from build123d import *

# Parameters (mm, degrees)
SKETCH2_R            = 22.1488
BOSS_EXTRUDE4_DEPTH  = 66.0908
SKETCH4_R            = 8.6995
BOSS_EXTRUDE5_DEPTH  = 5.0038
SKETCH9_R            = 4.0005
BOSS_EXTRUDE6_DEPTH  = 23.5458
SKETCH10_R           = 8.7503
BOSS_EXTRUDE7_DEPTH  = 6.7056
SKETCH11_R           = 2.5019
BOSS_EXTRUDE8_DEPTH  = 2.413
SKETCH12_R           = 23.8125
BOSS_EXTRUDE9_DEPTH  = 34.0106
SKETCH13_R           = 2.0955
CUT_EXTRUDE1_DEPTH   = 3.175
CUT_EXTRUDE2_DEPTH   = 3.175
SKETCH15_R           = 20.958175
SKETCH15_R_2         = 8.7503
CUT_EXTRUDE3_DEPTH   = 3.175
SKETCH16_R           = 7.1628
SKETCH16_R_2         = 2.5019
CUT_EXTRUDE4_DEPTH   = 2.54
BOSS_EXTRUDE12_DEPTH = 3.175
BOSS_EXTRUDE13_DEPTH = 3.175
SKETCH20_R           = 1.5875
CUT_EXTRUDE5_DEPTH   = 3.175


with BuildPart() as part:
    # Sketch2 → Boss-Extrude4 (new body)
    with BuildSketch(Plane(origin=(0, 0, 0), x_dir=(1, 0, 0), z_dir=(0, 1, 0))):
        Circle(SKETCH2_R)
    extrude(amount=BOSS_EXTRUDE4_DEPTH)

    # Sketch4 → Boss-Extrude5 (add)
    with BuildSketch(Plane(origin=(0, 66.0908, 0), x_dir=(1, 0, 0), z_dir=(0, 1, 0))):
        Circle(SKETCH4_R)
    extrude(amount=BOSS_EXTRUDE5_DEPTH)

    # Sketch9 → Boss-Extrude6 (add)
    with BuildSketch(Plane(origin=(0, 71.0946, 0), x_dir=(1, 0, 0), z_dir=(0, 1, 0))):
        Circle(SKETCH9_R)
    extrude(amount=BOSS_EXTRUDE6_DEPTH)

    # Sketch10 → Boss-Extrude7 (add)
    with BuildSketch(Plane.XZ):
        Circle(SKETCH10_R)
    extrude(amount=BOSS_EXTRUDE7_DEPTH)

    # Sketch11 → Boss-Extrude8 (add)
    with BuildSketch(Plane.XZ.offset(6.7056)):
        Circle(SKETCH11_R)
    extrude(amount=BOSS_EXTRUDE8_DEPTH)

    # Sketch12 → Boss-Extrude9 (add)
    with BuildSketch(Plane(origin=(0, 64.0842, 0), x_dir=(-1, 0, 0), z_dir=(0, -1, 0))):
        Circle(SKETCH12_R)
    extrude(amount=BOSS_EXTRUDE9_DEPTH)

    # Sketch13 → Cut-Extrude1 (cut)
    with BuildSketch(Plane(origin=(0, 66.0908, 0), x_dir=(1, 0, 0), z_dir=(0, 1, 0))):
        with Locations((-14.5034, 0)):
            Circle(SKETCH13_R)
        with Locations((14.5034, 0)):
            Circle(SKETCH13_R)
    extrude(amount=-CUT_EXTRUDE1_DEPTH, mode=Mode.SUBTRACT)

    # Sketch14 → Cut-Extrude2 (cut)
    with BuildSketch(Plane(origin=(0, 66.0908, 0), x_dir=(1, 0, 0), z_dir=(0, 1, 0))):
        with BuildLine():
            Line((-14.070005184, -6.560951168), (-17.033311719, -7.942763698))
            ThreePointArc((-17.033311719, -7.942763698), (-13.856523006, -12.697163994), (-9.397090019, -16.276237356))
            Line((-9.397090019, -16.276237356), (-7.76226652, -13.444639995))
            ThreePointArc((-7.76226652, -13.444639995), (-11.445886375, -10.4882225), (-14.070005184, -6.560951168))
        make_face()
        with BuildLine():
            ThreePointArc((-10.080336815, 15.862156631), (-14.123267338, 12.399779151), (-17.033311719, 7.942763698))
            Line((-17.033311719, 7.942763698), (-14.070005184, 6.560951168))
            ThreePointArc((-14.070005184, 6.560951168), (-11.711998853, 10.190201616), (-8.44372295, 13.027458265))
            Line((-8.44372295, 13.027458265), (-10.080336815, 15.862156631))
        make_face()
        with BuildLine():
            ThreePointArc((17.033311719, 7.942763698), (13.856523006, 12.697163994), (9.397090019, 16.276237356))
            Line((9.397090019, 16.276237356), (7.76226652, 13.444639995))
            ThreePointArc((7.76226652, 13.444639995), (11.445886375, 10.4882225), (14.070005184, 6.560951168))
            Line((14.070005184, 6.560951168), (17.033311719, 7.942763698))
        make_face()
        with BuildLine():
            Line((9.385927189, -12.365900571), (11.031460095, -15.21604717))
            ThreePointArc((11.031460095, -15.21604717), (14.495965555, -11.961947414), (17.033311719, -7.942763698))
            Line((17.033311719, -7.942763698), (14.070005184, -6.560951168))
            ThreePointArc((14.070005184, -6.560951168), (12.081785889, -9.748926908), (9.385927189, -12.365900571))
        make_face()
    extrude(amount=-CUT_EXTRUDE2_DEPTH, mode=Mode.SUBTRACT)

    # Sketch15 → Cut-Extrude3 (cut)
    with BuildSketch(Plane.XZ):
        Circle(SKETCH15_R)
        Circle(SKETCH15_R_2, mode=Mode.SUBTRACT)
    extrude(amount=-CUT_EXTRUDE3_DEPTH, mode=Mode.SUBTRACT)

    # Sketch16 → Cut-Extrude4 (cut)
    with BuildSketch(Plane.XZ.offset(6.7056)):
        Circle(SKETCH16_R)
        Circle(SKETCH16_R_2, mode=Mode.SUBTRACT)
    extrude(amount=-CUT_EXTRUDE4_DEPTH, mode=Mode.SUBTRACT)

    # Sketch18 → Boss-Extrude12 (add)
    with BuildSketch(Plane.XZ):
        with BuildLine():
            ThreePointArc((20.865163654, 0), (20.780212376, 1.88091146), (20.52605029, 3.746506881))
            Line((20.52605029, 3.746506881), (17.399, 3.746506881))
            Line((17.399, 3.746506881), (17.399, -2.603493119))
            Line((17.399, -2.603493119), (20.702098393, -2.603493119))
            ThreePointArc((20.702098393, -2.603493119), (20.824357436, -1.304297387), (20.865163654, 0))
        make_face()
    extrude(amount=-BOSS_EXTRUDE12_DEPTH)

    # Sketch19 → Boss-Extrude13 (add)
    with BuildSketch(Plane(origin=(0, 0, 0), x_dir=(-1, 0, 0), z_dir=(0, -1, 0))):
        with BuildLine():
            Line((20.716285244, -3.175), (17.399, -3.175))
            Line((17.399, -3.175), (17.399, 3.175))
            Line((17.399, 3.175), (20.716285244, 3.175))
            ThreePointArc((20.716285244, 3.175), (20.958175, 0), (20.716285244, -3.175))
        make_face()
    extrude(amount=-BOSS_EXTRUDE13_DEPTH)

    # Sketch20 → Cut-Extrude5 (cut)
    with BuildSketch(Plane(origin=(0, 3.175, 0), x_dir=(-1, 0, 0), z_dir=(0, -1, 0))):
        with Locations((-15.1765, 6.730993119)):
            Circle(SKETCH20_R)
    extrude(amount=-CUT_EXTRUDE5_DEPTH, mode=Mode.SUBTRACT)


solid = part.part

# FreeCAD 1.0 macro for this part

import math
import FreeCAD as App
import Part
import Sketcher
Q = App.Units.Quantity

doc = App.newDocument("Part")
body = doc.addObject("PartDesign::Body", "Body")

sketch1 = body.newObject("Sketcher::SketchObject", "Sketch")
sketch1.AttachmentSupport = (doc.getObject("XZ_Plane"), [""])
sketch1.MapMode = "FlatFace"
sketch1.addGeometry(Part.Circle(App.Vector(0, 0, 0), App.Vector(0, 0, 1), 22), False)
sketch1.addConstraint([
    Sketcher.Constraint("Coincident", 0, 3, -1, 1),
    Sketcher.Constraint("Diameter", 0, Q("1.744 in")),
])
pad1 = body.newObject("PartDesign::Pad", "Pad")
pad1.Profile = sketch1
pad1.Length = Q("2.602 in")
pad1.Reversed = True

sketch2 = body.newObject("Sketcher::SketchObject", "Sketch001")
sketch2.AttachmentSupport = (doc.getObject("XZ_Plane"), [""])
sketch2.MapMode = "FlatFace"
sketch2.AttachmentOffset = App.Placement(App.Vector(0, 0, -2.602 * 25.4), App.Rotation())
sketch2.addGeometry(Part.Circle(App.Vector(0, 0, 0), App.Vector(0, 0, 1), 9), False)
sketch2.addConstraint([
    Sketcher.Constraint("Coincident", 0, 3, -1, 1),
    Sketcher.Constraint("Diameter", 0, Q("0.685 in")),
])
pad2 = body.newObject("PartDesign::Pad", "Pad001")
pad2.Profile = sketch2
pad2.Length = Q("0.197 in")
pad2.Reversed = True

sketch3 = body.newObject("Sketcher::SketchObject", "Sketch002")
sketch3.AttachmentSupport = (doc.getObject("XZ_Plane"), [""])
sketch3.MapMode = "FlatFace"
sketch3.AttachmentOffset = App.Placement(App.Vector(0, 0, -2.799 * 25.4), App.Rotation())
sketch3.addGeometry(Part.Circle(App.Vector(0, 0, 0), App.Vector(0, 0, 1), 4), False)
sketch3.addConstraint([
    Sketcher.Constraint("Coincident", 0, 3, -1, 1),
    Sketcher.Constraint("Diameter", 0, Q("0.315 in")),
])
pad3 = body.newObject("PartDesign::Pad", "Pad002")
pad3.Profile = sketch3
pad3.Length = Q("0.927 in")
pad3.Reversed = True

sketch4 = body.newObject("Sketcher::SketchObject", "Sketch003")
sketch4.AttachmentSupport = (doc.getObject("XZ_Plane"), [""])
sketch4.MapMode = "FlatFace"
sketch4.addGeometry(Part.Circle(App.Vector(0, 0, 0), App.Vector(0, 0, 1), 9), False)
sketch4.addConstraint([
    Sketcher.Constraint("Coincident", 0, 3, -1, 1),
    Sketcher.Constraint("Diameter", 0, Q("0.689 in")),
])
pad4 = body.newObject("PartDesign::Pad", "Pad003")
pad4.Profile = sketch4
pad4.Length = Q("0.264 in")

sketch5 = body.newObject("Sketcher::SketchObject", "Sketch004")
sketch5.AttachmentSupport = (doc.getObject("XZ_Plane"), [""])
sketch5.MapMode = "FlatFace"
sketch5.AttachmentOffset = App.Placement(App.Vector(0, 0, 0.264 * 25.4), App.Rotation())
sketch5.addGeometry(Part.Circle(App.Vector(0, 0, 0), App.Vector(0, 0, 1), 2.5), False)
sketch5.addConstraint([
    Sketcher.Constraint("Coincident", 0, 3, -1, 1),
    Sketcher.Constraint("Diameter", 0, Q("0.197 in")),
])
pad5 = body.newObject("PartDesign::Pad", "Pad004")
pad5.Profile = sketch5
pad5.Length = Q("0.095 in")

sketch6 = body.newObject("Sketcher::SketchObject", "Sketch005")
sketch6.AttachmentSupport = (doc.getObject("XZ_Plane"), [""])
sketch6.MapMode = "FlatFace"
sketch6.AttachmentOffset = App.Placement(App.Vector(0, 0, -2.523 * 25.4), App.Rotation())
sketch6.addGeometry(Part.Circle(App.Vector(0, 0, 0), App.Vector(0, 0, 1), 24), False)
sketch6.addConstraint([
    Sketcher.Constraint("Coincident", 0, 3, -1, 1),
    Sketcher.Constraint("Diameter", 0, Q("1.875 in")),
])
pad6 = body.newObject("PartDesign::Pad", "Pad005")
pad6.Profile = sketch6
pad6.Length = Q("1.339 in")

sketch7 = body.newObject("Sketcher::SketchObject", "Sketch006")
sketch7.AttachmentSupport = (doc.getObject("XZ_Plane"), [""])
sketch7.MapMode = "FlatFace"
sketch7.AttachmentOffset = App.Placement(App.Vector(0, 0, -2.602 * 25.4), App.Rotation())
sketch7.addGeometry([
    Part.Circle(App.Vector(-14.5, 0, 0), App.Vector(0, 0, 1), 2.1),
    Part.Circle(App.Vector(14.5, 0, 0), App.Vector(0, 0, 1), 2.1),
], False)
sketch7.addConstraint([
    Sketcher.Constraint("Equal", 0, 1),
    Sketcher.Constraint("Symmetric", 0, 3, 1, 3, -1, 1),
    Sketcher.Constraint("PointOnObject", 0, 3, -1),
    Sketcher.Constraint("Diameter", 0, Q("0.165 in")),
    Sketcher.Constraint("DistanceX", 0, 3, -1, 1, Q("0.571 in")),
])
pocket1 = body.newObject("PartDesign::Pocket", "Pocket")
pocket1.Profile = sketch7
pocket1.Length = Q("0.125 in")
pocket1.Reversed = True

sketch8 = body.newObject("Sketcher::SketchObject", "Sketch007")
sketch8.AttachmentSupport = (doc.getObject("XZ_Plane"), [""])
sketch8.MapMode = "FlatFace"
sketch8.AttachmentOffset = App.Placement(App.Vector(0, 0, -2.602 * 25.4), App.Rotation())
sketch8.addGeometry([
    Part.LineSegment(App.Vector(-14.1, 6.6, 0), App.Vector(-17, 7.9, 0)),
    Part.ArcOfCircle(Part.Circle(App.Vector(0, 0, 0), App.Vector(0, 0, 1), 18.8), math.radians(120), math.radians(155)),
    Part.LineSegment(App.Vector(-9.4, 16.3, 0), App.Vector(-7.8, 13.4, 0)),
    Part.ArcOfCircle(Part.Circle(App.Vector(0, 0, 0), App.Vector(0, 0, 1), 15.5), math.radians(120), math.radians(155)),
    Part.ArcOfCircle(Part.Circle(App.Vector(0, 0, 0), App.Vector(0, 0, 1), 18.8), math.radians(-155), math.radians(-122)),
    Part.LineSegment(App.Vector(-17, -7.9, 0), App.Vector(-14.1, -6.6, 0)),
    Part.ArcOfCircle(Part.Circle(App.Vector(0, 0, 0), App.Vector(0, 0, 1), 15.5), math.radians(-155), math.radians(-123)),
    Part.LineSegment(App.Vector(-8.4, -13, 0), App.Vector(-10.1, -15.9, 0)),
    Part.ArcOfCircle(Part.Circle(App.Vector(0, 0, 0), App.Vector(0, 0, 1), 18.8), math.radians(-60), math.radians(-25)),
    Part.LineSegment(App.Vector(9.4, -16.3, 0), App.Vector(7.8, -13.4, 0)),
    Part.ArcOfCircle(Part.Circle(App.Vector(0, 0, 0), App.Vector(0, 0, 1), 15.5), math.radians(-60), math.radians(-25)),
    Part.LineSegment(App.Vector(14.1, -6.6, 0), App.Vector(17, -7.9, 0)),
    Part.LineSegment(App.Vector(9.4, 12.4, 0), App.Vector(11, 15.2, 0)),
    Part.ArcOfCircle(Part.Circle(App.Vector(0, 0, 0), App.Vector(0, 0, 1), 18.8), math.radians(25), math.radians(54)),
    Part.LineSegment(App.Vector(17, 7.9, 0), App.Vector(14.1, 6.6, 0)),
    Part.ArcOfCircle(Part.Circle(App.Vector(0, 0, 0), App.Vector(0, 0, 1), 15.5), math.radians(25), math.radians(53)),
], False)
sketch8.addConstraint([
    Sketcher.Constraint("Coincident", 0, 2, 1, 2),
    Sketcher.Constraint("Coincident", 1, 1, 2, 1),
    Sketcher.Constraint("Coincident", 2, 2, 3, 1),
    Sketcher.Constraint("Coincident", 3, 2, 0, 1),
    Sketcher.Constraint("Coincident", 4, 1, 5, 1),
    Sketcher.Constraint("Coincident", 5, 2, 6, 1),
    Sketcher.Constraint("Coincident", 6, 2, 7, 1),
    Sketcher.Constraint("Coincident", 7, 2, 4, 2),
    Sketcher.Constraint("Coincident", 8, 1, 9, 1),
    Sketcher.Constraint("Coincident", 9, 2, 10, 1),
    Sketcher.Constraint("Coincident", 10, 2, 11, 1),
    Sketcher.Constraint("Coincident", 11, 2, 8, 2),
    Sketcher.Constraint("Coincident", 12, 2, 13, 2),
    Sketcher.Constraint("Coincident", 13, 1, 14, 1),
    Sketcher.Constraint("Coincident", 14, 2, 15, 1),
    Sketcher.Constraint("Coincident", 15, 2, 12, 1),
    Sketcher.Constraint("Coincident", 1, 3, -1, 1),
    Sketcher.Constraint("Coincident", 3, 3, -1, 1),
    Sketcher.Constraint("Coincident", 4, 3, -1, 1),
    Sketcher.Constraint("Coincident", 6, 3, -1, 1),
    Sketcher.Constraint("Coincident", 8, 3, -1, 1),
    Sketcher.Constraint("Coincident", 10, 3, -1, 1),
    Sketcher.Constraint("Coincident", 13, 3, -1, 1),
    Sketcher.Constraint("Coincident", 15, 3, -1, 1),
    Sketcher.Constraint("Equal", 1, 4),
    Sketcher.Constraint("Equal", 3, 6),
    Sketcher.Constraint("Equal", 4, 8),
    Sketcher.Constraint("Equal", 6, 10),
    Sketcher.Constraint("Equal", 8, 13),
    Sketcher.Constraint("Equal", 10, 15),
    Sketcher.Constraint("Parallel", 2, 9),
    Sketcher.Constraint("Parallel", 0, 11),
    Sketcher.Constraint("Parallel", 7, 12),
    Sketcher.Constraint("Parallel", 5, 14),
    Sketcher.Constraint("Horizontal", 5, 2, 10, 2),
    Sketcher.Constraint("Horizontal", 4, 1, 11, 2),
    Sketcher.Constraint("Horizontal", 0, 2, 13, 1),
    Sketcher.Constraint("Vertical", 0, 2, 4, 1),
    Sketcher.Constraint("Angle", 0, Q("155 deg")),
    Sketcher.Constraint("Angle", 2, Q("-60 deg")),
    Sketcher.Constraint("Angle", 7, Q("-120 deg")),
    Sketcher.Constraint("Radius", 1, 18.79418),
    Sketcher.Constraint("Radius", 3, 15.524533),
    Sketcher.Constraint("DistanceY", -1, 1, 15, 2, 12.365901),
    Sketcher.Constraint("DistanceX", 0, 2, -1, 1, 17.033312),
    Sketcher.Constraint("DistanceX", 1, 1, -1, 1, 9.39709),
    Sketcher.Constraint("DistanceY", 6, 2, -1, 1, 13.027458),
    Sketcher.Constraint("DistanceX", -1, 1, 8, 1, 9.39709),
])
pocket2 = body.newObject("PartDesign::Pocket", "Pocket001")
pocket2.Profile = sketch8
pocket2.Length = Q("0.125 in")
pocket2.Reversed = True

sketch9 = body.newObject("Sketcher::SketchObject", "Sketch008")
sketch9.AttachmentSupport = (doc.getObject("XZ_Plane"), [""])
sketch9.MapMode = "FlatFace"
sketch9.addGeometry([
    Part.Circle(App.Vector(0, 0, 0), App.Vector(0, 0, 1), 21),
    Part.Circle(App.Vector(0, 0, 0), App.Vector(0, 0, 1), 9),
], False)
sketch9.addConstraint([
    Sketcher.Constraint("Coincident", 0, 3, -1, 1),
    Sketcher.Constraint("Coincident", 1, 3, -1, 1),
    Sketcher.Constraint("Diameter", 1, Q("0.689 in")),
    Sketcher.Constraint("Diameter", 0, 41.91635),
])
pocket3 = body.newObject("PartDesign::Pocket", "Pocket002")
pocket3.Profile = sketch9
pocket3.Length = Q("0.125 in")

sketch10 = body.newObject("Sketcher::SketchObject", "Sketch009")
sketch10.AttachmentSupport = (doc.getObject("XZ_Plane"), [""])
sketch10.MapMode = "FlatFace"
sketch10.AttachmentOffset = App.Placement(App.Vector(0, 0, 0.264 * 25.4), App.Rotation())
sketch10.addGeometry([
    Part.Circle(App.Vector(0, 0, 0), App.Vector(0, 0, 1), 7.2),
    Part.Circle(App.Vector(0, 0, 0), App.Vector(0, 0, 1), 2.5),
], False)
sketch10.addConstraint([
    Sketcher.Constraint("Coincident", 0, 3, -1, 1),
    Sketcher.Constraint("Coincident", 1, 3, -1, 1),
    Sketcher.Constraint("Diameter", 0, Q("0.564 in")),
    Sketcher.Constraint("Diameter", 1, Q("0.197 in")),
])
pocket4 = body.newObject("PartDesign::Pocket", "Pocket003")
pocket4.Profile = sketch10
pocket4.Length = Q("0.1 in")

sketch11 = body.newObject("Sketcher::SketchObject", "Sketch010")
sketch11.AttachmentSupport = (doc.getObject("XZ_Plane"), [""])
sketch11.MapMode = "FlatFace"
sketch11.addGeometry([
    Part.ArcOfCircle(Part.Circle(App.Vector(0, 0, 0), App.Vector(0, 0, 1), 20.9), math.radians(0), math.radians(10.34)),
    Part.LineSegment(App.Vector(20.5, 3.7, 0), App.Vector(17.4, 3.7, 0)),
    Part.LineSegment(App.Vector(17.4, 3.7, 0), App.Vector(17.4, -2.6, 0)),
    Part.LineSegment(App.Vector(17.4, -2.6, 0), App.Vector(20.7, -2.6, 0)),
    Part.ArcOfCircle(Part.Circle(App.Vector(0, 0, 0), App.Vector(0, 0, 1), 20.9), math.radians(-7.17), math.radians(0)),
], False)
sketch11.addConstraint([
    Sketcher.Constraint("Coincident", 0, 2, 1, 1),
    Sketcher.Constraint("Coincident", 1, 2, 2, 1),
    Sketcher.Constraint("Coincident", 2, 2, 3, 1),
    Sketcher.Constraint("Coincident", 3, 2, 4, 1),
    Sketcher.Constraint("Tangent", 4, 2, 0, 1),
    Sketcher.Constraint("Horizontal", 1),
    Sketcher.Constraint("Vertical", 2),
    Sketcher.Constraint("Horizontal", 3),
    Sketcher.Constraint("Coincident", 0, 3, -1, 1),
    Sketcher.Constraint("Equal", 0, 4),
    Sketcher.Constraint("PointOnObject", 4, 2, -1),
    Sketcher.Constraint("DistanceY", 2, 2, 2, 1, Q("0.25 in")),
    Sketcher.Constraint("DistanceX", -1, 1, 1, 2, Q("0.685 in")),
    Sketcher.Constraint("DistanceX", 3, 1, 3, 2, 3.303098),
    Sketcher.Constraint("Radius", 0, 20.865164),
])
pad7 = body.newObject("PartDesign::Pad", "Pad006")
pad7.Profile = sketch11
pad7.Length = Q("0.125 in")
pad7.Reversed = True

sketch12 = body.newObject("Sketcher::SketchObject", "Sketch011")
sketch12.AttachmentSupport = (doc.getObject("XZ_Plane"), [""])
sketch12.MapMode = "FlatFace"
sketch12.addGeometry([
    Part.LineSegment(App.Vector(-17.4, 3.2, 0), App.Vector(-20.7, 3.2, 0)),
    Part.ArcOfCircle(Part.Circle(App.Vector(0, 0, 0), App.Vector(0, 0, 1), 21), math.radians(171.29), math.radians(188.71)),
    Part.LineSegment(App.Vector(-20.7, -3.2, 0), App.Vector(-17.4, -3.2, 0)),
    Part.LineSegment(App.Vector(-17.4, -3.2, 0), App.Vector(-17.4, 3.2, 0)),
], False)
sketch12.addConstraint([
    Sketcher.Constraint("Coincident", 0, 2, 1, 1),
    Sketcher.Constraint("Coincident", 1, 2, 2, 1),
    Sketcher.Constraint("Coincident", 2, 2, 3, 1),
    Sketcher.Constraint("Coincident", 3, 2, 0, 1),
    Sketcher.Constraint("Horizontal", 0),
    Sketcher.Constraint("Horizontal", 2),
    Sketcher.Constraint("Vertical", 3),
    Sketcher.Constraint("Coincident", 1, 3, -1, 1),
    Sketcher.Constraint("Vertical", 0, 2, 1, 2),
    Sketcher.Constraint("DistanceY", 3, 1, 3, 2, Q("0.25 in")),
    Sketcher.Constraint("DistanceX", 2, 2, -1, 1, Q("0.685 in")),
    Sketcher.Constraint("Radius", 1, 20.958175),
])
pad8 = body.newObject("PartDesign::Pad", "Pad007")
pad8.Profile = sketch12
pad8.Length = Q("0.125 in")
pad8.Reversed = True

sketch13 = body.newObject("Sketcher::SketchObject", "Sketch012")
sketch13.AttachmentSupport = (doc.getObject("XZ_Plane"), [""])
sketch13.MapMode = "FlatFace"
sketch13.AttachmentOffset = App.Placement(App.Vector(0, 0, -0.125 * 25.4), App.Rotation())
sketch13.addGeometry(Part.Circle(App.Vector(15.2, -6.7, 0), App.Vector(0, 0, 1), 1.6), False)
sketch13.addConstraint([
    Sketcher.Constraint("Diameter", 0, Q("0.125 in")),
    Sketcher.Constraint("DistanceX", -1, 1, 0, 3, Q("0.5975 in")),
    Sketcher.Constraint("DistanceY", 0, 3, -1, 1, 6.730993),
])
pocket5 = body.newObject("PartDesign::Pocket", "Pocket004")
pocket5.Profile = sketch13
pocket5.Length = Q("0.125 in")

doc.recompute()
